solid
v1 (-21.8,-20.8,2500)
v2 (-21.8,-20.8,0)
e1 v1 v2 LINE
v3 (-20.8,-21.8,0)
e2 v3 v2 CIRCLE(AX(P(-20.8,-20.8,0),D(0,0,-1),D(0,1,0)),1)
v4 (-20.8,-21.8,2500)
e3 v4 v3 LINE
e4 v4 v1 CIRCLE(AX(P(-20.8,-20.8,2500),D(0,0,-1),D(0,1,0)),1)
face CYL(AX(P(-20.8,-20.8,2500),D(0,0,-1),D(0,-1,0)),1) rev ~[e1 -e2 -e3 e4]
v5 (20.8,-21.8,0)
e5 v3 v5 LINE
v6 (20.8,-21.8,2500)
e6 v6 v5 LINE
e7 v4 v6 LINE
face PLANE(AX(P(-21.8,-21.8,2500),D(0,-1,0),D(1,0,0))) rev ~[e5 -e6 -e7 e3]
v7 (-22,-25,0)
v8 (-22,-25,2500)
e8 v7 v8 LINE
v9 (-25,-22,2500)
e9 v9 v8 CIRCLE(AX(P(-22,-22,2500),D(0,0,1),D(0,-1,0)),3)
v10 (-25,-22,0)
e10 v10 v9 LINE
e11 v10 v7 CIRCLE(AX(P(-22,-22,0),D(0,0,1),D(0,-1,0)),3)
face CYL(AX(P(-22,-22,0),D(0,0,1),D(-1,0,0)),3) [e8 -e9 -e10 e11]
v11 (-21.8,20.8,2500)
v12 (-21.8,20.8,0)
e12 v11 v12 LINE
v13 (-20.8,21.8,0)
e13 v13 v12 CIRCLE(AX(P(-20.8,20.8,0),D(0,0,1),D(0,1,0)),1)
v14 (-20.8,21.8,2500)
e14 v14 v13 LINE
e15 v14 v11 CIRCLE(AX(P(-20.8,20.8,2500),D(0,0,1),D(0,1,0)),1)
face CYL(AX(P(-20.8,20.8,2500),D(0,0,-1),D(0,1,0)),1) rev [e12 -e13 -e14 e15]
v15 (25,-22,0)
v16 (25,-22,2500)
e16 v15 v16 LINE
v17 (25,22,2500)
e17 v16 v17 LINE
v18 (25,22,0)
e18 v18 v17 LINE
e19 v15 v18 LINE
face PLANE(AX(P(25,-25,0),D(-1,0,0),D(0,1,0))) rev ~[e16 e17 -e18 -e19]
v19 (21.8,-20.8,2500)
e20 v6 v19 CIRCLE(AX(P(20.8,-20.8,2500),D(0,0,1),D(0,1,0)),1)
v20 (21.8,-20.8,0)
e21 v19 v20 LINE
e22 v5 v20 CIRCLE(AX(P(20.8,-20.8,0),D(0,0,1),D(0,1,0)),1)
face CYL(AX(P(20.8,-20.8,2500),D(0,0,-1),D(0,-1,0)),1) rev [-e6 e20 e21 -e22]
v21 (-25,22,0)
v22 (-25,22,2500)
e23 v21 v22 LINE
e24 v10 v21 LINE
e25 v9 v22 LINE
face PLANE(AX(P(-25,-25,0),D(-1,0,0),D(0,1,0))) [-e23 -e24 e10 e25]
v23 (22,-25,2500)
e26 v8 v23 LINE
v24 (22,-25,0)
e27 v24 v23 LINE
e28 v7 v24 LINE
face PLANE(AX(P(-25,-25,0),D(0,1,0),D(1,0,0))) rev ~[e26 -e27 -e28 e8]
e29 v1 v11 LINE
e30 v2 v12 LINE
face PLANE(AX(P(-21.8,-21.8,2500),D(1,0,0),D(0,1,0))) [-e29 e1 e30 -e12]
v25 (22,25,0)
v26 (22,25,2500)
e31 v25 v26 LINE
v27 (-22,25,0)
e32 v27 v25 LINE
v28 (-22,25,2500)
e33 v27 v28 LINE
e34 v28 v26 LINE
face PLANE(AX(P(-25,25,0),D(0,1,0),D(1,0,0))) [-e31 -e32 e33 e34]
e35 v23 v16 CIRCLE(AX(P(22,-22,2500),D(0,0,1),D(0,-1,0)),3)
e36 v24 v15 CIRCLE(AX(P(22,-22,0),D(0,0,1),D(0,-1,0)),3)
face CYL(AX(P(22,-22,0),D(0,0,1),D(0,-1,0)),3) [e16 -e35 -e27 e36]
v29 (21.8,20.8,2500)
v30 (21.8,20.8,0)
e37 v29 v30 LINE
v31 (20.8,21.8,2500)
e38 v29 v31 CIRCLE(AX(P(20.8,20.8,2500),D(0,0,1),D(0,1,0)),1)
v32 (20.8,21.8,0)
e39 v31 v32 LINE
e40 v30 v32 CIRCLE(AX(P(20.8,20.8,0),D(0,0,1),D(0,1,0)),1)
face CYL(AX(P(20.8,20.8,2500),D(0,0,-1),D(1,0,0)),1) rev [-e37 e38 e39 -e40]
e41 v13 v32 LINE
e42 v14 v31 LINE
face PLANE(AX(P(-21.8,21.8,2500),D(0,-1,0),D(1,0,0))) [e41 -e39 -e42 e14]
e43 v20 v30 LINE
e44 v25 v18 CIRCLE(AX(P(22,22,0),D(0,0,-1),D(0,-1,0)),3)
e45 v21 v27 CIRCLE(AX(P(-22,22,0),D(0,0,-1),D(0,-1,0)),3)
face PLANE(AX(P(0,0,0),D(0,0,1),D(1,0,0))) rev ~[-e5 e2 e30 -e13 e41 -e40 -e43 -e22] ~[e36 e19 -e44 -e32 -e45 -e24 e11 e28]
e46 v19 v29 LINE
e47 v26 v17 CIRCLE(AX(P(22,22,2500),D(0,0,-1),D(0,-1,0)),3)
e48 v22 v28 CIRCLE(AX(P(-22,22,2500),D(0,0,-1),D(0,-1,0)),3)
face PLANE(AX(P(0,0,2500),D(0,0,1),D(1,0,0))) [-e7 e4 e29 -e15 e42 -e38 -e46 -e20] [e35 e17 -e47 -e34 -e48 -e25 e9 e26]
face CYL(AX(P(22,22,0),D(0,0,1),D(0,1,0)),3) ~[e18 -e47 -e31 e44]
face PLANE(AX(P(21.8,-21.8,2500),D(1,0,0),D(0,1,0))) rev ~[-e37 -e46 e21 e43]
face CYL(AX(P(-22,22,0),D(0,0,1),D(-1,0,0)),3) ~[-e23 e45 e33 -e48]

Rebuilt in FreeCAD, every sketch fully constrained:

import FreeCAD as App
import Part
import Sketcher
from FreeCAD import Vector
Q = App.Units.Quantity


def edges_at(feature, points):
    """Names of the edges that pass closest to the given points."""
    edges = feature.Shape.Edges
    near = lambda p: min(range(len(edges)), key=lambda i: edges[i].distToShape(Part.Vertex(*p))[0])
    return sorted({f"Edge{near(p) + 1}" for p in points})


def add_polygon(sketch, points):
    """Adds a closed chain of lines whose ends are joined by coincident constraints."""
    first, n = sketch.GeometryCount, len(points)
    for a, b in zip(points, points[1:] + points[:1]):
        sketch.addGeometry(Part.LineSegment(App.Vector(*a, 0), App.Vector(*b, 0)), False)
    for i in range(n):
        sketch.addConstraint(Sketcher.Constraint("Coincident", first + i, 2, first + (i + 1) % n, 1))

doc = App.newDocument("Part")
body = doc.addObject("PartDesign::Body", "Body")

sketch1 = body.newObject("Sketcher::SketchObject", "Sketch")
sketch1.AttachmentSupport = (doc.getObject("XY_Plane"), [""])
sketch1.MapMode = "FlatFace"
add_polygon(sketch1, [(-25, 25), (-25, -25), (25, -25), (25, 25)])
sketch1.addConstraint([
    Sketcher.Constraint("Vertical", 0),
    Sketcher.Constraint("Horizontal", 1),
    Sketcher.Constraint("Vertical", 2),
    Sketcher.Constraint("Horizontal", 3),
    Sketcher.Constraint("Symmetric", 0, 2, 2, 2, -1, 1),
    Sketcher.Constraint("Equal", 3, 0),
    Sketcher.Constraint("DistanceX", 1, 1, 1, 2, Q("50 mm")),
])
pad1 = body.newObject("PartDesign::Pad", "Pad")
pad1.Profile = sketch1
pad1.Length = 2500

sketch2 = body.newObject("Sketcher::SketchObject", "Sketch001")
sketch2.AttachmentSupport = (doc.getObject("XY_Plane"), [""])
sketch2.MapMode = "FlatFace"
sketch2.AttachmentOffset = App.Placement(Vector(0, 0, 2500), App.Rotation())
add_polygon(sketch2, [(-22, 22), (-22, -22), (22, -22), (22, 22)])
sketch2.addConstraint([
    Sketcher.Constraint("Vertical", 0),
    Sketcher.Constraint("Horizontal", 1),
    Sketcher.Constraint("Vertical", 2),
    Sketcher.Constraint("Horizontal", 3),
    Sketcher.Constraint("Symmetric", 0, 2, 2, 2, -1, 1),
    Sketcher.Constraint("Equal", 3, 0),
    Sketcher.Constraint("DistanceX", 1, 1, 1, 2, Q("43.6 mm")),
])
pocket1 = body.newObject("PartDesign::Pocket", "Pocket")
pocket1.Profile = sketch2
pocket1.Type = "ThroughAll"
doc.recompute()

fillet = body.newObject("PartDesign::Fillet", "Fillet")
fillet.Base = (pocket1, edges_at(pocket1, [
    (25, -25, 1250),
    (25, 25, 1250),
    (-25, -25, 1250),
    (-25, 25, 1250),
]))
fillet.Radius = 3
doc.recompute()

fillet2 = body.newObject("PartDesign::Fillet", "Fillet001")
fillet2.Base = (fillet, edges_at(fillet, [
    (21.8, -21.8, 1250),
    (-21.8, 21.8, 1250),
    (21.8, 21.8, 1250),
    (-21.8, -21.8, 1250),
]))
fillet2.Radius = 1

doc.recompute()
